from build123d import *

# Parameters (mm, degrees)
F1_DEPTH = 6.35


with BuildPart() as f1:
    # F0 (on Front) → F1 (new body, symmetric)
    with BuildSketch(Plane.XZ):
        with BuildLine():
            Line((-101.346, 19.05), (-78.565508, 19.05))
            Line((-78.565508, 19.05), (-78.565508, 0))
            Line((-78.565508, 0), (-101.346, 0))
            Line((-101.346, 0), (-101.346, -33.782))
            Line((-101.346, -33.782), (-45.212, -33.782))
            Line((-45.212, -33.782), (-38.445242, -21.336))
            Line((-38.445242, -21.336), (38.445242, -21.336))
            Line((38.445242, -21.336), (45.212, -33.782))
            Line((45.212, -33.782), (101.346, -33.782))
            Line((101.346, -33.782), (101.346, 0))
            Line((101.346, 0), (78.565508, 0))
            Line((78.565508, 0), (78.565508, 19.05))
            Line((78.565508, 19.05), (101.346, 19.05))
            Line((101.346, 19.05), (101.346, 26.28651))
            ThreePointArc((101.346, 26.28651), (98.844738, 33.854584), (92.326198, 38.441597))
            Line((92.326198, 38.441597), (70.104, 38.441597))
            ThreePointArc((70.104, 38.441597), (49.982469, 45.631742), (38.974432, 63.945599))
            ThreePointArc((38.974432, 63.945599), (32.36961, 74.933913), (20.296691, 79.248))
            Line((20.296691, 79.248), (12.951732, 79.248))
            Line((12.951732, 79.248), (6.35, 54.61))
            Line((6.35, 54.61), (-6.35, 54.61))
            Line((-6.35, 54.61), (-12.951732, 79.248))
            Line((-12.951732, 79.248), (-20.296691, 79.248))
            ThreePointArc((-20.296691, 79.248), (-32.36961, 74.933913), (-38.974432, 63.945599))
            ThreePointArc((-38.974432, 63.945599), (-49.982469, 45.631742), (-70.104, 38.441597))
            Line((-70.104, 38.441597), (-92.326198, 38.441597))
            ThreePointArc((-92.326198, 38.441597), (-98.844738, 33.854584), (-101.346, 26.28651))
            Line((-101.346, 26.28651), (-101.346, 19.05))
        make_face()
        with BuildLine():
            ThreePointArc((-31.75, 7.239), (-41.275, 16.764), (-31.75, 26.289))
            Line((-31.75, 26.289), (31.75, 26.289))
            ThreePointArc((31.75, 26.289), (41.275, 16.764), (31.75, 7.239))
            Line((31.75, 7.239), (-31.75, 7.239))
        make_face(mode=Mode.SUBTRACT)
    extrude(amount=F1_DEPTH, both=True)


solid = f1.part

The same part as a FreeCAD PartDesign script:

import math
import FreeCAD as App
import Part
import Sketcher
Q = App.Units.Quantity

doc = App.newDocument("Part")
params = doc.addObject("Spreadsheet::Sheet", "Params")
for row, (alias, value) in enumerate([
    ("sketch1_radius", "0.5 in"),
    ("sketch1_radius2", "1.25 in"),
    ("sketch1_radius3", "0.75 in"),
    ("sketch1_width", "0.5 in"),
    ("sketch1_width2", "2.5 in"),
    ("pad1_length", "0.5 in"),
], start=1):
    params.set(f"A{row}", alias)
    params.set(f"B{row}", "=" + value)
    params.setAlias(f"B{row}", alias)

body = doc.addObject("PartDesign::Body", "Body")

# Sketch on XZ plane
sketch1 = body.newObject("Sketcher::SketchObject", "Sketch")
sketch1.AttachmentSupport = (doc.getObject("XZ_Plane"), [""])
sketch1.MapMode = "FlatFace"
sketch1.addGeometry(Part.LineSegment(App.Vector(-101.346, 19.05, 0), App.Vector(-78.565508, 19.05, 0)), False)
sketch1.addGeometry(Part.LineSegment(App.Vector(-78.565508, 19.05, 0), App.Vector(-78.565508, 0, 0)), False)
sketch1.addGeometry(Part.LineSegment(App.Vector(-78.565508, 0, 0), App.Vector(-101.346, 0, 0)), False)
sketch1.addGeometry(Part.LineSegment(App.Vector(-101.346, 0, 0), App.Vector(-101.346, -33.782, 0)), False)
sketch1.addGeometry(Part.LineSegment(App.Vector(-101.346, -33.782, 0), App.Vector(-45.212, -33.782, 0)), False)
sketch1.addGeometry(Part.LineSegment(App.Vector(-45.212, -33.782, 0), App.Vector(-38.445242, -21.336, 0)), False)
sketch1.addGeometry(Part.LineSegment(App.Vector(-38.445242, -21.336, 0), App.Vector(38.445242, -21.336, 0)), False)
sketch1.addGeometry(Part.LineSegment(App.Vector(38.445242, -21.336, 0), App.Vector(45.212, -33.782, 0)), False)
sketch1.addGeometry(Part.LineSegment(App.Vector(45.212, -33.782, 0), App.Vector(101.346, -33.782, 0)), False)
sketch1.addGeometry(Part.LineSegment(App.Vector(101.346, -33.782, 0), App.Vector(101.346, 0, 0)), False)
sketch1.addGeometry(Part.LineSegment(App.Vector(101.346, 0, 0), App.Vector(78.565508, 0, 0)), False)
sketch1.addGeometry(Part.LineSegment(App.Vector(78.565508, 0, 0), App.Vector(78.565508, 19.05, 0)), False)
sketch1.addGeometry(Part.LineSegment(App.Vector(78.565508, 19.05, 0), App.Vector(101.346, 19.05, 0)), False)
sketch1.addGeometry(Part.LineSegment(App.Vector(101.346, 19.05, 0), App.Vector(101.346, 26.28651, 0)), False)
sketch1.addGeometry(Part.ArcOfCircle(Part.Circle(App.Vector(88.646, 26.28651, 0), App.Vector(0, 0, 1), 12.7), math.radians(-0.000001), math.radians(73.155254)), False)
sketch1.addGeometry(Part.LineSegment(App.Vector(92.326198, 38.441597, 0), App.Vector(70.104, 38.441597, 0)), False)
sketch1.addGeometry(Part.ArcOfCircle(Part.Circle(App.Vector(70.104, 70.191598, 0), App.Vector(0, 0, 1), 31.75), math.radians(-168.654527), math.radians(-90.000001)), False)
sketch1.addGeometry(Part.ArcOfCircle(Part.Circle(App.Vector(20.296691, 60.198, 0), App.Vector(0, 0, 1), 19.05), math.radians(11.345473), math.radians(90.000001)), False)
sketch1.addGeometry(Part.LineSegment(App.Vector(20.296691, 79.248, 0), App.Vector(12.951732, 79.248, 0)), False)
sketch1.addGeometry(Part.LineSegment(App.Vector(12.951732, 79.248, 0), App.Vector(6.35, 54.61, 0)), False)
sketch1.addGeometry(Part.LineSegment(App.Vector(6.35, 54.61, 0), App.Vector(-6.35, 54.61, 0)), False)
sketch1.addGeometry(Part.LineSegment(App.Vector(-6.35, 54.61, 0), App.Vector(-12.951732, 79.248, 0)), False)
sketch1.addGeometry(Part.LineSegment(App.Vector(-12.951732, 79.248, 0), App.Vector(-20.296691, 79.248, 0)), False)
sketch1.addGeometry(Part.ArcOfCircle(Part.Circle(App.Vector(-20.296691, 60.198, 0), App.Vector(0, 0, 1), 19.05), math.radians(89.999999), math.radians(168.654527)), False)
sketch1.addGeometry(Part.ArcOfCircle(Part.Circle(App.Vector(-70.104, 70.191598, 0), App.Vector(0, 0, 1), 31.75), math.radians(-89.999999), math.radians(-11.345473)), False)
sketch1.addGeometry(Part.LineSegment(App.Vector(-70.104, 38.441597, 0), App.Vector(-92.326198, 38.441597, 0)), False)
sketch1.addGeometry(Part.ArcOfCircle(Part.Circle(App.Vector(-88.646, 26.28651, 0), App.Vector(0, 0, 1), 12.7), math.radians(106.844746), math.radians(180.000001)), False)
sketch1.addGeometry(Part.LineSegment(App.Vector(-101.346, 26.28651, 0), App.Vector(-101.346, 19.05, 0)), False)
sketch1.addGeometry(Part.LineSegment(App.Vector(31.75, 7.239, 0), App.Vector(-31.75, 7.239, 0)), False)
sketch1.addGeometry(Part.ArcOfCircle(Part.Circle(App.Vector(-31.75, 16.764, 0), App.Vector(0, 0, 1), 9.525), math.radians(90), math.radians(270)), False)
sketch1.addGeometry(Part.LineSegment(App.Vector(-31.75, 26.289, 0), App.Vector(31.75, 26.289, 0)), False)
sketch1.addGeometry(Part.ArcOfCircle(Part.Circle(App.Vector(31.75, 16.764, 0), App.Vector(0, 0, 1), 9.525), math.radians(-90), math.radians(90)), False)
sketch1.addConstraint(Sketcher.Constraint("Coincident", 0, 2, 1, 1))
sketch1.addConstraint(Sketcher.Constraint("Coincident", 1, 2, 2, 1))
sketch1.addConstraint(Sketcher.Constraint("Coincident", 2, 2, 3, 1))
sketch1.addConstraint(Sketcher.Constraint("Coincident", 3, 2, 4, 1))
sketch1.addConstraint(Sketcher.Constraint("Coincident", 4, 2, 5, 1))
sketch1.addConstraint(Sketcher.Constraint("Coincident", 5, 2, 6, 1))
sketch1.addConstraint(Sketcher.Constraint("Coincident", 6, 2, 7, 1))
sketch1.addConstraint(Sketcher.Constraint("Coincident", 7, 2, 8, 1))
sketch1.addConstraint(Sketcher.Constraint("Coincident", 8, 2, 9, 1))
sketch1.addConstraint(Sketcher.Constraint("Coincident", 9, 2, 10, 1))
sketch1.addConstraint(Sketcher.Constraint("Coincident", 10, 2, 11, 1))
sketch1.addConstraint(Sketcher.Constraint("Coincident", 11, 2, 12, 1))
sketch1.addConstraint(Sketcher.Constraint("Coincident", 12, 2, 13, 1))
sketch1.addConstraint(Sketcher.Constraint("Tangent", 13, 2, 14, 1))
sketch1.addConstraint(Sketcher.Constraint("Coincident", 14, 2, 15, 1))
sketch1.addConstraint(Sketcher.Constraint("Tangent", 15, 2, 16, 2))
sketch1.addConstraint(Sketcher.Constraint("Tangent", 16, 1, 17, 1))
sketch1.addConstraint(Sketcher.Constraint("Tangent", 17, 2, 18, 1))
sketch1.addConstraint(Sketcher.Constraint("Coincident", 18, 2, 19, 1))
sketch1.addConstraint(Sketcher.Constraint("Coincident", 19, 2, 20, 1))
sketch1.addConstraint(Sketcher.Constraint("Coincident", 20, 2, 21, 1))
sketch1.addConstraint(Sketcher.Constraint("Coincident", 21, 2, 22, 1))
sketch1.addConstraint(Sketcher.Constraint("Tangent", 22, 2, 23, 1))
sketch1.addConstraint(Sketcher.Constraint("Tangent", 23, 2, 24, 2))
sketch1.addConstraint(Sketcher.Constraint("Tangent", 24, 1, 25, 1))
sketch1.addConstraint(Sketcher.Constraint("Coincident", 25, 2, 26, 1))
sketch1.addConstraint(Sketcher.Constraint("Tangent", 26, 2, 27, 1))
sketch1.addConstraint(Sketcher.Constraint("Coincident", 27, 2, 0, 1))
sketch1.addConstraint(Sketcher.Constraint("Tangent", 28, 2, 29, 2))
sketch1.addConstraint(Sketcher.Constraint("Tangent", 29, 1, 30, 1))
sketch1.addConstraint(Sketcher.Constraint("Tangent", 30, 2, 31, 2))
sketch1.addConstraint(Sketcher.Constraint("Tangent", 31, 1, 28, 1))
sketch1.addConstraint(Sketcher.Constraint("Horizontal", 0))
sketch1.addConstraint(Sketcher.Constraint("Vertical", 1))
sketch1.addConstraint(Sketcher.Constraint("Horizontal", 2))
sketch1.addConstraint(Sketcher.Constraint("Vertical", 3))
sketch1.addConstraint(Sketcher.Constraint("Horizontal", 4))
sketch1.addConstraint(Sketcher.Constraint("Horizontal", 6))
sketch1.addConstraint(Sketcher.Constraint("Horizontal", 8))
sketch1.addConstraint(Sketcher.Constraint("Vertical", 9))
sketch1.addConstraint(Sketcher.Constraint("Horizontal", 10))
sketch1.addConstraint(Sketcher.Constraint("Vertical", 11))
sketch1.addConstraint(Sketcher.Constraint("Horizontal", 12))
sketch1.addConstraint(Sketcher.Constraint("Vertical", 13))
sketch1.addConstraint(Sketcher.Constraint("Horizontal", 15))
sketch1.addConstraint(Sketcher.Constraint("Horizontal", 18))
sketch1.addConstraint(Sketcher.Constraint("Horizontal", 20))
sketch1.addConstraint(Sketcher.Constraint("Horizontal", 22))
sketch1.addConstraint(Sketcher.Constraint("Horizontal", 25))
sketch1.addConstraint(Sketcher.Constraint("Vertical", 27))
sketch1.addConstraint(Sketcher.Constraint("Horizontal", 28))
sketch1.addConstraint(Sketcher.Constraint("Horizontal", 30))
sketch1.addConstraint(Sketcher.Constraint("Equal", 17, 23))
sketch1.addConstraint(Sketcher.Constraint("Equal", 16, 24))
sketch1.addConstraint(Sketcher.Constraint("Equal", 14, 26))
sketch1.addConstraint(Sketcher.Constraint("Symmetric", 2, 2, 9, 2, -1, 1))
sketch1.addConstraint(Sketcher.Constraint("Symmetric", 17, 3, 23, 3, -2))
sketch1.addConstraint(Sketcher.Constraint("Symmetric", 14, 3, 26, 3, -2))
sketch1.addConstraint(Sketcher.Constraint("Symmetric", 4, 2, 7, 2, -2))
sketch1.addConstraint(Sketcher.Constraint("Symmetric", 1, 2, 10, 2, -2))
sketch1.addConstraint(Sketcher.Constraint("Horizontal", 16, 3, 24, 3))
sketch1.addConstraint(Sketcher.Constraint("Horizontal", 0, 2, 11, 2))
sketch1.addConstraint(Sketcher.Constraint("Vertical", 9, 2, 12, 2))
sketch1.addConstraint(Sketcher.Constraint("Equal", 18, 22))
sketch1.addConstraint(Sketcher.Constraint("Equal", 5, 7))
sketch1.addConstraint(Sketcher.Constraint("Equal", 19, 21))
sketch1.addConstraint(Sketcher.Constraint("Radius", 14, Q("0.5 in")))
sketch1.addConstraint(Sketcher.Constraint("Radius", 16, Q("1.25 in")))
sketch1.addConstraint(Sketcher.Constraint("Radius", 17, Q("0.75 in")))
sketch1.addConstraint(Sketcher.Constraint("DistanceX", 20, 2, 20, 1, Q("0.5 in")))
sketch1.addConstraint(Sketcher.Constraint("DistanceX", 28, 2, 28, 1, Q("2.5 in")))
sketch1.addConstraint(Sketcher.Constraint("Angle", 19, Q("-105 deg")))
sketch1.addConstraint(Sketcher.Constraint("Radius", 29, Q("0.375 in")))
sketch1.addConstraint(Sketcher.Constraint("DistanceX", 29, 1, 20, 2, Q("1 in")))
sketch1.addConstraint(Sketcher.Constraint("DistanceX", 4, 1, 4, 2, Q("2.21 in")))
sketch1.addConstraint(Sketcher.Constraint("DistanceY", 1, 2, 1, 1, Q("0.75 in")))
sketch1.addConstraint(Sketcher.Constraint("DistanceY", 3, 2, 3, 1, Q("1.33 in")))
sketch1.addConstraint(Sketcher.Constraint("DistanceY", 5, 2, 29, 3, Q("1.5 in")))
sketch1.addConstraint(Sketcher.Constraint("DistanceX", -1, 1, 14, 3, Q("3.49 in")))
sketch1.addConstraint(Sketcher.Constraint("DistanceX", -1, 1, 16, 3, Q("2.76 in")))
sketch1.addConstraint(Sketcher.Constraint("DistanceY", -1, 1, 17, 3, Q("2.37 in")))
sketch1.addConstraint(Sketcher.Constraint("DistanceY", -1, 1, 29, 3, Q("0.66 in")))
sketch1.addConstraint(Sketcher.Constraint("DistanceY", -1, 1, 19, 2, Q("2.15 in")))
sketch1.addConstraint(Sketcher.Constraint("DistanceX", 15, 2, 15, 1, Q("22.222198 mm")))
sketch1.addConstraint(Sketcher.Constraint("DistanceX", 18, 2, 18, 1, Q("7.344959 mm")))
sketch1.addConstraint(Sketcher.Constraint("DistanceX", 0, 2, 17, 3, Q("98.862199 mm")))
sketch1.addConstraint(Sketcher.Constraint("DistanceX", 6, 1, 6, 2, Q("76.890484 mm")))
sketch1.setExpression("Constraints[66]", "Params.sketch1_radius")
sketch1.setExpression("Constraints[67]", "Params.sketch1_radius2")
sketch1.setExpression("Constraints[68]", "Params.sketch1_radius3")
sketch1.setExpression("Constraints[69]", "Params.sketch1_width")
sketch1.setExpression("Constraints[70]", "Params.sketch1_width2")
pad1 = body.newObject("PartDesign::Pad", "Pad")
pad1.Profile = sketch1
pad1.setExpression("Length", "Params.pad1_length")
pad1.Midplane = True

doc.recompute()
